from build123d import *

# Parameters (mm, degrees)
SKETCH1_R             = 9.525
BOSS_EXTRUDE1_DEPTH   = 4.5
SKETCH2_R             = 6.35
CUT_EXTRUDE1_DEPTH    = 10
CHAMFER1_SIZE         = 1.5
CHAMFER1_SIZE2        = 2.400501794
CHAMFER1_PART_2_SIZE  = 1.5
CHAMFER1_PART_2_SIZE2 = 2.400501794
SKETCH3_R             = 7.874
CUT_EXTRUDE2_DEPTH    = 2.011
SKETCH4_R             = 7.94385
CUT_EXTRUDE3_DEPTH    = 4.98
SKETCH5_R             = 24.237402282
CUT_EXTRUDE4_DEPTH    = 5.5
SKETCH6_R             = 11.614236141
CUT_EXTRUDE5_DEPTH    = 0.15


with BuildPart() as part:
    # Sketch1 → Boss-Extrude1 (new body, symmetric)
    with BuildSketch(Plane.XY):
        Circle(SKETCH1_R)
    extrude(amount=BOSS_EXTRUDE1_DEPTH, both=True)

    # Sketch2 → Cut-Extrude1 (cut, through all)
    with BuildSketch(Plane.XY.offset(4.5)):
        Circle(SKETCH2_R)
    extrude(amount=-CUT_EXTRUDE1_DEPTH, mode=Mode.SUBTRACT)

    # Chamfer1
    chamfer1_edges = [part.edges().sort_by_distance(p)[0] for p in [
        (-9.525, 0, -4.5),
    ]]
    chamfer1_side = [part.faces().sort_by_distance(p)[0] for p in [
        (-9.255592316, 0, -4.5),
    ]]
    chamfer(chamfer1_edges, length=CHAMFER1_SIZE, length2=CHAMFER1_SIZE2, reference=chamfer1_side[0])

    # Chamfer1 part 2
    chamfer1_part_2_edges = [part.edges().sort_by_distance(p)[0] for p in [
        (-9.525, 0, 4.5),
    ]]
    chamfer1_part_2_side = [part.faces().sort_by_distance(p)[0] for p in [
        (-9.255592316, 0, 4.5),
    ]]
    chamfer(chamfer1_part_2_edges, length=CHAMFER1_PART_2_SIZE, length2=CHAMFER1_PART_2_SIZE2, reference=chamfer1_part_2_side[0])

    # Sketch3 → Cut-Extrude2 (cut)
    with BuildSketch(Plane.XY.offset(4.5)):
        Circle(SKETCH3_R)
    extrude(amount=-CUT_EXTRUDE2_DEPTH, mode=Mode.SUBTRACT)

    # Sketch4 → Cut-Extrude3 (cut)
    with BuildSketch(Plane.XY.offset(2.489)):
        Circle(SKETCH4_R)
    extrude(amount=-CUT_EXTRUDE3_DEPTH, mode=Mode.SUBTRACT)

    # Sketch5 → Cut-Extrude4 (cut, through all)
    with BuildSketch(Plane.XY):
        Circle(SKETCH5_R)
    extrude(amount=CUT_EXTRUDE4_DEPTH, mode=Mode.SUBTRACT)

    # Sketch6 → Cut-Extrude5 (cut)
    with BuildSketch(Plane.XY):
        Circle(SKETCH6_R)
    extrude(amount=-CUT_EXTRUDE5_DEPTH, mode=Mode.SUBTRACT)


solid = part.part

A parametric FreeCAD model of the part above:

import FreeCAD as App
import Part
import Sketcher
Q = App.Units.Quantity


def edges_at(feature, points):
    """Names of the edges that pass closest to the given points."""
    edges = feature.Shape.Edges
    near = lambda p: min(range(len(edges)), key=lambda i: edges[i].distToShape(Part.Vertex(*p))[0])
    return sorted({f"Edge{near(p) + 1}" for p in points})

doc = App.newDocument("Part")
body = doc.addObject("PartDesign::Body", "Body")

sketch1 = body.newObject("Sketcher::SketchObject", "Sketch")
sketch1.AttachmentSupport = (doc.getObject("XY_Plane"), [""])
sketch1.MapMode = "FlatFace"
sketch1.addGeometry(Part.Circle(App.Vector(0, 0, 0), App.Vector(0, 0, 1), 10), False)
sketch1.addConstraint([
    Sketcher.Constraint("Coincident", 0, 3, -1, 1),
    Sketcher.Constraint("Diameter", 0, Q("19.05 mm")),
])
pad1 = body.newObject("PartDesign::Pad", "Pad")
pad1.Profile = sketch1
pad1.Length = 9
pad1.Midplane = True

sketch2 = body.newObject("Sketcher::SketchObject", "Sketch001")
sketch2.AttachmentSupport = (doc.getObject("XY_Plane"), [""])
sketch2.MapMode = "FlatFace"
sketch2.AttachmentOffset = App.Placement(App.Vector(0, 0, 4.5), App.Rotation())
sketch2.addGeometry(Part.Circle(App.Vector(0, 0, 0), App.Vector(0, 0, 1), 6), False)
sketch2.addConstraint([
    Sketcher.Constraint("Coincident", 0, 3, -1, 1),
    Sketcher.Constraint("Diameter", 0, Q("12.7 mm")),
])
pocket1 = body.newObject("PartDesign::Pocket", "Pocket")
pocket1.Profile = sketch2
pocket1.Type = "ThroughAll"
doc.recompute()

chamfer = body.newObject("PartDesign::Chamfer", "Chamfer")
chamfer.Base = (pocket1, edges_at(pocket1, [(-9.525, 0, -4.5)]))
chamfer.ChamferType = "Two distances"
chamfer.Size = 1.5
chamfer.Size2 = 2.400502
chamfer.FlipDirection = True
doc.recompute()

chamfer2 = body.newObject("PartDesign::Chamfer", "Chamfer001")
chamfer2.Base = (chamfer, edges_at(chamfer, [(-9.525, 0, 4.5)]))
chamfer2.ChamferType = "Two distances"
chamfer2.Size = 1.5
chamfer2.Size2 = 2.400502
chamfer2.FlipDirection = True

sketch3 = body.newObject("Sketcher::SketchObject", "Sketch002")
sketch3.AttachmentSupport = (doc.getObject("XY_Plane"), [""])
sketch3.MapMode = "FlatFace"
sketch3.AttachmentOffset = App.Placement(App.Vector(0, 0, 4.5), App.Rotation())
sketch3.addGeometry(Part.Circle(App.Vector(0, 0, 0), App.Vector(0, 0, 1), 8), False)
sketch3.addConstraint([
    Sketcher.Constraint("Coincident", 0, 3, -1, 1),
    Sketcher.Constraint("Diameter", 0, Q("15.748 mm")),
])
pocket2 = body.newObject("PartDesign::Pocket", "Pocket001")
pocket2.Profile = sketch3
pocket2.Length = 2.011

sketch4 = body.newObject("Sketcher::SketchObject", "Sketch003")
sketch4.AttachmentSupport = (doc.getObject("XY_Plane"), [""])
sketch4.MapMode = "FlatFace"
sketch4.AttachmentOffset = App.Placement(App.Vector(0, 0, 2.489), App.Rotation())
sketch4.addGeometry(Part.Circle(App.Vector(0, 0, 0), App.Vector(0, 0, 1), 8), False)
sketch4.addConstraint([
    Sketcher.Constraint("Coincident", 0, 3, -1, 1),
    Sketcher.Constraint("Diameter", 0, Q("15.8877 mm")),
])
pocket3 = body.newObject("PartDesign::Pocket", "Pocket002")
pocket3.Profile = sketch4
pocket3.Length = 4.98

sketch5 = body.newObject("Sketcher::SketchObject", "Sketch004")
sketch5.AttachmentSupport = (doc.getObject("XY_Plane"), [""])
sketch5.MapMode = "FlatFace"
sketch5.addGeometry(Part.Circle(App.Vector(0, 0, 0), App.Vector(0, 0, 1), 24), False)
sketch5.addConstraint([
    Sketcher.Constraint("Coincident", 0, 3, -1, 1),
    Sketcher.Constraint("Diameter", 0, Q("48.474805 mm")),
])
pocket4 = body.newObject("PartDesign::Pocket", "Pocket003")
pocket4.Profile = sketch5
pocket4.Type = "ThroughAll"
pocket4.Reversed = True

sketch6 = body.newObject("Sketcher::SketchObject", "Sketch005")
sketch6.AttachmentSupport = (doc.getObject("XY_Plane"), [""])
sketch6.MapMode = "FlatFace"
sketch6.addGeometry(Part.Circle(App.Vector(0, 0, 0), App.Vector(0, 0, 1), 12), False)
sketch6.addConstraint([
    Sketcher.Constraint("Coincident", 0, 3, -1, 1),
    Sketcher.Constraint("Diameter", 0, Q("23.228472 mm")),
])
pocket5 = body.newObject("PartDesign::Pocket", "Pocket004")
pocket5.Profile = sketch6
pocket5.Length = 0.15

doc.recompute()
